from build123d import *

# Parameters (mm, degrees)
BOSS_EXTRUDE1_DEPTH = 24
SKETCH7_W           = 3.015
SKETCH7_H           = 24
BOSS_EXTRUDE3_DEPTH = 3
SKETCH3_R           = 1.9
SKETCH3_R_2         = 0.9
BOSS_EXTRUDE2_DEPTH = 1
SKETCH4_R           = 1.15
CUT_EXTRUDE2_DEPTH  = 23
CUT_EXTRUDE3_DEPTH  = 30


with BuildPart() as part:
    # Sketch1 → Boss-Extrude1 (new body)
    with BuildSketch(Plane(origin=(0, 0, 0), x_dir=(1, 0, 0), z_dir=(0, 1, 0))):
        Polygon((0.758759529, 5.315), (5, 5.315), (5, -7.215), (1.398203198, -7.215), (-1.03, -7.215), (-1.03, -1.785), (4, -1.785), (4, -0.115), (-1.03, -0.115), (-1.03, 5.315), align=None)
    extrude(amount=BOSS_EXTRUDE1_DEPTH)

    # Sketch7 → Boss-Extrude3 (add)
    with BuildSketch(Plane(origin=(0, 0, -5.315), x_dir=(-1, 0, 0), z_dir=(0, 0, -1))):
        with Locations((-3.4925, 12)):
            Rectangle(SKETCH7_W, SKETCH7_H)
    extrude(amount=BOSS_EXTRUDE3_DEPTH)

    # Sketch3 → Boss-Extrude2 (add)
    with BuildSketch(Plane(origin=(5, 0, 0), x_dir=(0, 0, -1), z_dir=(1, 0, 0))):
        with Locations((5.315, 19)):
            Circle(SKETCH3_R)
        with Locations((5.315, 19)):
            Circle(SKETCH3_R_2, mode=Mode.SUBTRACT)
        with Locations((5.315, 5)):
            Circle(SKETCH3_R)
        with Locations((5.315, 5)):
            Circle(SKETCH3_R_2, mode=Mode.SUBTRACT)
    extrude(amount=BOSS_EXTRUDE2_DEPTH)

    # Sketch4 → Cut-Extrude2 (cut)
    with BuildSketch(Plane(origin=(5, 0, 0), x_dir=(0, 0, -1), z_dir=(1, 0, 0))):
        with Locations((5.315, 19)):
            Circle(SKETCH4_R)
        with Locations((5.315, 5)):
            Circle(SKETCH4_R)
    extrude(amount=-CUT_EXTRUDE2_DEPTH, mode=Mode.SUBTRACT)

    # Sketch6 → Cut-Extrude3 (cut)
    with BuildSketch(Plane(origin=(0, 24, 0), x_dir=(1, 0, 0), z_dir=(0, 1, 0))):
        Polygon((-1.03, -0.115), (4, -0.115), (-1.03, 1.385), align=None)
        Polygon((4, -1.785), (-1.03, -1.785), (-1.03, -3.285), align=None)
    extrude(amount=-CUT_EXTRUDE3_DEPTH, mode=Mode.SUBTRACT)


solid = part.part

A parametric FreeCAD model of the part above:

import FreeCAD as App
import Part
import Sketcher
from FreeCAD import Vector

doc = App.newDocument("Part")
body = doc.addObject("PartDesign::Body", "Body")

# Sketch on XZ plane
sketch1 = body.newObject("Sketcher::SketchObject", "Sketch")
sketch1.AttachmentSupport = (doc.getObject("XZ_Plane"), [""])
sketch1.MapMode = "FlatFace"
sketch1.addGeometry(Part.LineSegment(Vector(5, -5.3, 0), Vector(-1, -5.3, 0)), False)
sketch1.addGeometry(Part.LineSegment(Vector(-1, -5.3, 0), Vector(-1, 0.1, 0)), False)
sketch1.addGeometry(Part.LineSegment(Vector(-1, 0.1, 0), Vector(4, 0.1, 0)), False)
sketch1.addGeometry(Part.LineSegment(Vector(4, 0.1, 0), Vector(4, 1.8, 0)), False)
sketch1.addGeometry(Part.LineSegment(Vector(4, 1.8, 0), Vector(-1, 1.8, 0)), False)
sketch1.addGeometry(Part.LineSegment(Vector(-1, 1.8, 0), Vector(-1, 7.2, 0)), False)
sketch1.addGeometry(Part.LineSegment(Vector(-1, 7.2, 0), Vector(5, 7.2, 0)), False)
sketch1.addGeometry(Part.LineSegment(Vector(5, 7.2, 0), Vector(5, -5.3, 0)), False)
sketch1.addConstraint(Sketcher.Constraint("Coincident", 0, 2, 1, 1))
sketch1.addConstraint(Sketcher.Constraint("Coincident", 1, 2, 2, 1))
sketch1.addConstraint(Sketcher.Constraint("Coincident", 2, 2, 3, 1))
sketch1.addConstraint(Sketcher.Constraint("Coincident", 3, 2, 4, 1))
sketch1.addConstraint(Sketcher.Constraint("Coincident", 4, 2, 5, 1))
sketch1.addConstraint(Sketcher.Constraint("Coincident", 5, 2, 6, 1))
sketch1.addConstraint(Sketcher.Constraint("Coincident", 6, 2, 7, 1))
sketch1.addConstraint(Sketcher.Constraint("Coincident", 7, 2, 0, 1))
sketch1.addConstraint(Sketcher.Constraint("Horizontal", 0))
sketch1.addConstraint(Sketcher.Constraint("Vertical", 1))
sketch1.addConstraint(Sketcher.Constraint("Horizontal", 2))
sketch1.addConstraint(Sketcher.Constraint("Vertical", 3))
sketch1.addConstraint(Sketcher.Constraint("Horizontal", 4))
sketch1.addConstraint(Sketcher.Constraint("Vertical", 5))
sketch1.addConstraint(Sketcher.Constraint("Horizontal", 6))
sketch1.addConstraint(Sketcher.Constraint("Vertical", 7))
sketch1.addConstraint(Sketcher.Constraint("Vertical", 1, 2, 4, 2))
sketch1.addConstraint(Sketcher.Constraint("Equal", 1, 5))
sketch1.addConstraint(Sketcher.Constraint("DistanceX", -1, 1, 2, 2, 4.0))
sketch1.addConstraint(Sketcher.Constraint("DistanceX", -1, 1, 6, 2, 5.0))
sketch1.addConstraint(Sketcher.Constraint("DistanceX", 0, 2, 0, 1, 6.03))
sketch1.addConstraint(Sketcher.Constraint("DistanceY", 1, 1, 1, 2, 5.43))
sketch1.addConstraint(Sketcher.Constraint("DistanceY", 3, 1, 3, 2, 1.67))
sketch1.addConstraint(Sketcher.Constraint("DistanceY", 0, 2, -1, 1, 5.315))
pad1 = body.newObject("PartDesign::Pad", "Pad")
pad1.Profile = sketch1
pad1.Length = 24
pad1.Reversed = True

# Sketch on XY plane
sketch2 = body.newObject("Sketcher::SketchObject", "Sketch001")
sketch2.AttachmentSupport = (doc.getObject("XY_Plane"), [""])
sketch2.MapMode = "FlatFace"
sketch2.AttachmentOffset = App.Placement(Vector(0, 0, -5.315), App.Rotation())
sketch2.addGeometry(Part.LineSegment(Vector(5, 24, 0), Vector(5, 0, 0)), False)
sketch2.addGeometry(Part.LineSegment(Vector(5, 0, 0), Vector(2, 0, 0)), False)
sketch2.addGeometry(Part.LineSegment(Vector(2, 0, 0), Vector(2, 24, 0)), False)
sketch2.addGeometry(Part.LineSegment(Vector(2, 24, 0), Vector(5, 24, 0)), False)
sketch2.addConstraint(Sketcher.Constraint("Coincident", 0, 2, 1, 1))
sketch2.addConstraint(Sketcher.Constraint("Coincident", 1, 2, 2, 1))
sketch2.addConstraint(Sketcher.Constraint("Coincident", 2, 2, 3, 1))
sketch2.addConstraint(Sketcher.Constraint("Coincident", 3, 2, 0, 1))
sketch2.addConstraint(Sketcher.Constraint("Vertical", 0))
sketch2.addConstraint(Sketcher.Constraint("Horizontal", 1))
sketch2.addConstraint(Sketcher.Constraint("Vertical", 2))
sketch2.addConstraint(Sketcher.Constraint("Horizontal", 3))
sketch2.addConstraint(Sketcher.Constraint("PointOnObject", 0, 2, -1))
sketch2.addConstraint(Sketcher.Constraint("DistanceY", 0, 2, 0, 1, 24.0))
sketch2.addConstraint(Sketcher.Constraint("DistanceX", -1, 1, 0, 2, 5.0))
sketch2.addConstraint(Sketcher.Constraint("DistanceX", 1, 2, 1, 1, 3.015))
pad2 = body.newObject("PartDesign::Pad", "Pad001")
pad2.Profile = sketch2
pad2.Length = 3
pad2.Reversed = True

# Sketch on YZ plane
sketch3 = body.newObject("Sketcher::SketchObject", "Sketch002")
sketch3.AttachmentSupport = (doc.getObject("YZ_Plane"), [""])
sketch3.MapMode = "FlatFace"
sketch3.AttachmentOffset = App.Placement(Vector(0, 0, 5), App.Rotation())
sketch3.addGeometry(Part.Circle(Vector(19, -5.3, 0), Vector(0, 0, 1), 1.9), False)
sketch3.addGeometry(Part.Circle(Vector(19, -5.3, 0), Vector(0, 0, 1), 0.9), False)
sketch3.addGeometry(Part.Circle(Vector(5, -5.3, 0), Vector(0, 0, 1), 1.9), False)
sketch3.addGeometry(Part.Circle(Vector(5, -5.3, 0), Vector(0, 0, 1), 0.9), False)
sketch3.addConstraint(Sketcher.Constraint("Coincident", 1, 3, 0, 3))
sketch3.addConstraint(Sketcher.Constraint("Coincident", 3, 3, 2, 3))
sketch3.addConstraint(Sketcher.Constraint("Equal", 0, 2))
sketch3.addConstraint(Sketcher.Constraint("Equal", 1, 3))
sketch3.addConstraint(Sketcher.Constraint("Horizontal", 1, 3, 2, 3))
sketch3.addConstraint(Sketcher.Constraint("Diameter", 0, 3.8))
sketch3.addConstraint(Sketcher.Constraint("Diameter", 1, 1.8))
sketch3.addConstraint(Sketcher.Constraint("DistanceX", -1, 1, 0, 3, 19.0))
sketch3.addConstraint(Sketcher.Constraint("DistanceX", -1, 1, 2, 3, 5.0))
sketch3.addConstraint(Sketcher.Constraint("DistanceY", 0, 3, -1, 1, 5.315))
pad3 = body.newObject("PartDesign::Pad", "Pad002")
pad3.Profile = sketch3
pad3.Length = 1

# Sketch on YZ plane
sketch4 = body.newObject("Sketcher::SketchObject", "Sketch003")
sketch4.AttachmentSupport = (doc.getObject("YZ_Plane"), [""])
sketch4.MapMode = "FlatFace"
sketch4.AttachmentOffset = App.Placement(Vector(0, 0, 5), App.Rotation())
sketch4.addGeometry(Part.Circle(Vector(19, -5.3, 0), Vector(0, 0, 1), 1.1), False)
sketch4.addGeometry(Part.Circle(Vector(5, -5.3, 0), Vector(0, 0, 1), 1.1), False)
sketch4.addConstraint(Sketcher.Constraint("Equal", 0, 1))
sketch4.addConstraint(Sketcher.Constraint("Horizontal", 0, 3, 1, 3))
sketch4.addConstraint(Sketcher.Constraint("Diameter", 0, 2.3))
sketch4.addConstraint(Sketcher.Constraint("DistanceX", -1, 1, 0, 3, 19.0))
sketch4.addConstraint(Sketcher.Constraint("DistanceX", -1, 1, 1, 3, 5.0))
sketch4.addConstraint(Sketcher.Constraint("DistanceY", 0, 3, -1, 1, 5.315))
pocket1 = body.newObject("PartDesign::Pocket", "Pocket")
pocket1.Profile = sketch4
pocket1.Length = 23

# Sketch on XZ plane
sketch5 = body.newObject("Sketcher::SketchObject", "Sketch004")
sketch5.AttachmentSupport = (doc.getObject("XZ_Plane"), [""])
sketch5.MapMode = "FlatFace"
sketch5.AttachmentOffset = App.Placement(Vector(0, 0, -24), App.Rotation())
sketch5.addGeometry(Part.LineSegment(Vector(-1, 0.1, 0), Vector(4, 0.1, 0)), False)
sketch5.addGeometry(Part.LineSegment(Vector(4, 0.1, 0), Vector(-1, -1.4, 0)), False)
sketch5.addGeometry(Part.LineSegment(Vector(-1, -1.4, 0), Vector(-1, 0.1, 0)), False)
sketch5.addGeometry(Part.LineSegment(Vector(4, 1.8, 0), Vector(-1, 1.8, 0)), False)
sketch5.addGeometry(Part.LineSegment(Vector(-1, 1.8, 0), Vector(-1, 3.3, 0)), False)
sketch5.addGeometry(Part.LineSegment(Vector(-1, 3.3, 0), Vector(4, 1.8, 0)), False)
sketch5.addConstraint(Sketcher.Constraint("Coincident", 0, 2, 1, 1))
sketch5.addConstraint(Sketcher.Constraint("Coincident", 1, 2, 2, 1))
sketch5.addConstraint(Sketcher.Constraint("Coincident", 2, 2, 0, 1))
sketch5.addConstraint(Sketcher.Constraint("Coincident", 3, 2, 4, 1))
sketch5.addConstraint(Sketcher.Constraint("Coincident", 4, 2, 5, 1))
sketch5.addConstraint(Sketcher.Constraint("Coincident", 5, 2, 3, 1))
sketch5.addConstraint(Sketcher.Constraint("Horizontal", 0))
sketch5.addConstraint(Sketcher.Constraint("Vertical", 2))
sketch5.addConstraint(Sketcher.Constraint("Horizontal", 3))
sketch5.addConstraint(Sketcher.Constraint("Vertical", 4))
sketch5.addConstraint(Sketcher.Constraint("Vertical", 2, 2, 3, 2))
sketch5.addConstraint(Sketcher.Constraint("Vertical", 0, 2, 5, 2))
sketch5.addConstraint(Sketcher.Constraint("Equal", 2, 4))
sketch5.addConstraint(Sketcher.Constraint("DistanceY", 2, 1, 2, 2, 1.5))
sketch5.addConstraint(Sketcher.Constraint("DistanceX", -1, 1, 0, 2, 4.0))
sketch5.addConstraint(Sketcher.Constraint("DistanceX", 0, 1, 0, 2, 5.03))
sketch5.addConstraint(Sketcher.Constraint("DistanceY", 2, 2, 3, 2, 1.67))
sketch5.addConstraint(Sketcher.Constraint("DistanceY", -1, 1, 0, 2, 0.115))
pocket2 = body.newObject("PartDesign::Pocket", "Pocket001")
pocket2.Profile = sketch5
pocket2.Length = 30
pocket2.Reversed = True

doc.recompute()
